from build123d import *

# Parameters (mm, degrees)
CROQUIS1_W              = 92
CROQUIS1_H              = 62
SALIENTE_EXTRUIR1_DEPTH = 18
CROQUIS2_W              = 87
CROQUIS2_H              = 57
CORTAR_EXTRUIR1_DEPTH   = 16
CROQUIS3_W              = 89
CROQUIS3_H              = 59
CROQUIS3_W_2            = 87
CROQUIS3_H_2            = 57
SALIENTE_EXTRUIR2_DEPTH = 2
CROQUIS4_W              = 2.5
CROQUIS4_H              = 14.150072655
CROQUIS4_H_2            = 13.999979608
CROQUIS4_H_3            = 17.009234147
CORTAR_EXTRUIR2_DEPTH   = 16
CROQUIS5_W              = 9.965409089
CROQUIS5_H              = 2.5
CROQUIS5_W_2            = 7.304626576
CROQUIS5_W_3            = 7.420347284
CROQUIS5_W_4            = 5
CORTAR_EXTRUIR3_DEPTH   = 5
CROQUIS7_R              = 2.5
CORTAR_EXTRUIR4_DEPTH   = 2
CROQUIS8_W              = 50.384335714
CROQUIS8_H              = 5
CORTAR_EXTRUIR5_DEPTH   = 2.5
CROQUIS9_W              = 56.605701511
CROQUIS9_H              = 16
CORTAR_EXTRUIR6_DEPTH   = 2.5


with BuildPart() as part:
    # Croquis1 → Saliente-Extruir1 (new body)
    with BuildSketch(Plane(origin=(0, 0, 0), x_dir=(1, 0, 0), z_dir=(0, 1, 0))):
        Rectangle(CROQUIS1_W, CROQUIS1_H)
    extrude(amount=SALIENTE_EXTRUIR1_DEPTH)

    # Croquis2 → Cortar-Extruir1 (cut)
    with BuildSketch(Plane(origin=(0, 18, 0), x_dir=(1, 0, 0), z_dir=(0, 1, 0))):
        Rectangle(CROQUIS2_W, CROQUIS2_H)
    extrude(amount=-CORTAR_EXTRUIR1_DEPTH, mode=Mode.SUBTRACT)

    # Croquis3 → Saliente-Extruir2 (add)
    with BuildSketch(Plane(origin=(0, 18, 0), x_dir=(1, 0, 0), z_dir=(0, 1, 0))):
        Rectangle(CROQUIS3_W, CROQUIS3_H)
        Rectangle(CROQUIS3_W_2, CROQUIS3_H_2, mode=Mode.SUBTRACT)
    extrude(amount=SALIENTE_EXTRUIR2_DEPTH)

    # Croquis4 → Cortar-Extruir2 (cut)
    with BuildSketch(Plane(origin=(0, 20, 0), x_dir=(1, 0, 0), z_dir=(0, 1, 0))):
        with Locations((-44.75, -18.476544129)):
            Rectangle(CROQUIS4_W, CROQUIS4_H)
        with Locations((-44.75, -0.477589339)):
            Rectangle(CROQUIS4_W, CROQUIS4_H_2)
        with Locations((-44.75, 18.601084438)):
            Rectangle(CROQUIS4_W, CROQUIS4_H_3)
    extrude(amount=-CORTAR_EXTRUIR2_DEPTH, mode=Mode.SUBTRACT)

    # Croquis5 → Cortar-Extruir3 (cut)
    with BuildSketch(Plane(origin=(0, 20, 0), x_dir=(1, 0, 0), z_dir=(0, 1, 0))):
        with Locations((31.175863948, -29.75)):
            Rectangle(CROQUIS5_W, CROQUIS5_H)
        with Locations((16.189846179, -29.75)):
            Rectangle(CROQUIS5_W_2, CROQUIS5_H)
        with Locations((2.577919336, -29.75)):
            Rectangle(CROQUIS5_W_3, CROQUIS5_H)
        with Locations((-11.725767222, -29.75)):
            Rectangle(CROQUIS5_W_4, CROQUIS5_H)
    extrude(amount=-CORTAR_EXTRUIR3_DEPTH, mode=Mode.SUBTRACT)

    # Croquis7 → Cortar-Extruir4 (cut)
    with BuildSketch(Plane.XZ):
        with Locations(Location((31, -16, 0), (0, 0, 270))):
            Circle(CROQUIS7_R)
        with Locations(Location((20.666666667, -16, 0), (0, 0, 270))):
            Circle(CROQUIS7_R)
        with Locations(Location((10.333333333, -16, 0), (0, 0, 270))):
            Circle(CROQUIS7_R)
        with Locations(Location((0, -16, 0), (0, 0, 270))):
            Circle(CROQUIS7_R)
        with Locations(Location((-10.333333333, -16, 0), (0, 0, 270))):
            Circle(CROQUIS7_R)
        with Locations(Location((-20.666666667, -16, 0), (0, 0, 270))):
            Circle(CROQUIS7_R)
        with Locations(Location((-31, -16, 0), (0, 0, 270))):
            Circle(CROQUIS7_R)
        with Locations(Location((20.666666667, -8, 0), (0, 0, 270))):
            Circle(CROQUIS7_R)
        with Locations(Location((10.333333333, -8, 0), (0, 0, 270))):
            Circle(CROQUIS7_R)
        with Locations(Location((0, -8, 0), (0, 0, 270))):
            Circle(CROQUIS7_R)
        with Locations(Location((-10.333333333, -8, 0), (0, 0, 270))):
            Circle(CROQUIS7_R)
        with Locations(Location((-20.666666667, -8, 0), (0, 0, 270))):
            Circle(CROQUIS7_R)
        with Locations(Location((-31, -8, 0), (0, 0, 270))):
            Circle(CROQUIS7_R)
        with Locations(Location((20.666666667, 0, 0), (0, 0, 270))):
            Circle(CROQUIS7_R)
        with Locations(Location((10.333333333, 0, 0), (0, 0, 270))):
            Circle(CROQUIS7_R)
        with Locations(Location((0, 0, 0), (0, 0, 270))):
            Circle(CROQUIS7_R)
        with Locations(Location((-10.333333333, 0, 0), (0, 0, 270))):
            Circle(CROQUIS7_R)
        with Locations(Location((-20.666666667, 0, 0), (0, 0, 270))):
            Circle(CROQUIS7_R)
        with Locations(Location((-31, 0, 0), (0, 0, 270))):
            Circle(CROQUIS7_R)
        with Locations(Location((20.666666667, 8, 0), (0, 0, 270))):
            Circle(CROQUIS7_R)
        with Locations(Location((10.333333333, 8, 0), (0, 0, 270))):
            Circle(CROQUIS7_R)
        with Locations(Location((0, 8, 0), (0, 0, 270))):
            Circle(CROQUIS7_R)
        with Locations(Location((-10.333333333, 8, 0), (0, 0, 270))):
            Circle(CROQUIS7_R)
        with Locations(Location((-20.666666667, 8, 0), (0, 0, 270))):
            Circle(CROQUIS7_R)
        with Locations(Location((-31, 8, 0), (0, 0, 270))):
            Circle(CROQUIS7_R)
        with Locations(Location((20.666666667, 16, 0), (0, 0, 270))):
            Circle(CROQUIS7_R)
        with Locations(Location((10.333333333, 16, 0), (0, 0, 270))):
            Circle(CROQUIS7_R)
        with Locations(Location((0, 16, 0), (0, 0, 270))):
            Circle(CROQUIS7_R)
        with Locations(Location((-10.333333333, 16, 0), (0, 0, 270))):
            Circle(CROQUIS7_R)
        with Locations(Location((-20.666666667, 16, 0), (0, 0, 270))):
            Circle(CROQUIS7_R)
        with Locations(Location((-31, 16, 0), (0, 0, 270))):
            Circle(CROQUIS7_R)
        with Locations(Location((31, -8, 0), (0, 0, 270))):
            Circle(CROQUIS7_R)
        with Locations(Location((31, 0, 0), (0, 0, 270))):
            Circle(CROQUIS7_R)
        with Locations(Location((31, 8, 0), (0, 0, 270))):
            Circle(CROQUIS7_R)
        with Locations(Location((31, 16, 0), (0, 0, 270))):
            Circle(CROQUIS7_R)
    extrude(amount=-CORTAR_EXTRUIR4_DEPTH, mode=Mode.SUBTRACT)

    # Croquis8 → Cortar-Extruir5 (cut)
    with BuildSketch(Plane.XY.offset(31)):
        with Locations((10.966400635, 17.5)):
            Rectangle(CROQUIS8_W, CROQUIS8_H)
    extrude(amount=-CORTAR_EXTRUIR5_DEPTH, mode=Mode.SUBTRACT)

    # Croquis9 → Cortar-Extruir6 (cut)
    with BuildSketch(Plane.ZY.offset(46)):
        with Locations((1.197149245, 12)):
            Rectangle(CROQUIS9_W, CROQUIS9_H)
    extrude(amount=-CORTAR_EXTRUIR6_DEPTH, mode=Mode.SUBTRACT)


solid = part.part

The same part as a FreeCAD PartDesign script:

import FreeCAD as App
import Part
import Sketcher

V = App.Vector
Q = App.Units.Quantity


def add_polygon(sketch, points):
    """Adds a closed chain of lines whose ends are joined by coincident constraints."""
    first, n = sketch.GeometryCount, len(points)
    for a, b in zip(points, points[1:] + points[:1]):
        sketch.addGeometry(Part.LineSegment(App.Vector(*a, 0), App.Vector(*b, 0)), False)
    for i in range(n):
        sketch.addConstraint(Sketcher.Constraint("Coincident", first + i, 2, first + (i + 1) % n, 1))

doc = App.newDocument("Part")
body = doc.addObject("PartDesign::Body", "Body")

sketch1 = body.newObject("Sketcher::SketchObject", "Sketch")
sketch1.AttachmentSupport = (doc.getObject("XZ_Plane"), [""])
sketch1.MapMode = "FlatFace"
add_polygon(sketch1, [(-46, -31), (-46, 31), (46, 31), (46, -31)])
sketch1.addConstraint(Sketcher.Constraint("Vertical", 0))
sketch1.addConstraint(Sketcher.Constraint("Horizontal", 1))
sketch1.addConstraint(Sketcher.Constraint("Vertical", 2))
sketch1.addConstraint(Sketcher.Constraint("Horizontal", 3))
sketch1.addConstraint(Sketcher.Constraint("Symmetric", 0, 2, 2, 2, -1, 1))
sketch1.addConstraint(Sketcher.Constraint("DistanceX", 1, 1, 1, 2, Q("92 mm")))
sketch1.addConstraint(Sketcher.Constraint("DistanceY", 0, 1, 0, 2, Q("62 mm")))
pad1 = body.newObject("PartDesign::Pad", "Pad")
pad1.Profile = sketch1
pad1.Length = 18
pad1.Reversed = True

sketch2 = body.newObject("Sketcher::SketchObject", "Sketch001")
sketch2.AttachmentSupport = (doc.getObject("XZ_Plane"), [""])
sketch2.MapMode = "FlatFace"
sketch2.AttachmentOffset = App.Placement(V(0, 0, -18), App.Rotation())
add_polygon(sketch2, [(-44, -28), (-44, 28), (44, 28), (44, -28)])
sketch2.addConstraint(Sketcher.Constraint("Vertical", 0))
sketch2.addConstraint(Sketcher.Constraint("Horizontal", 1))
sketch2.addConstraint(Sketcher.Constraint("Vertical", 2))
sketch2.addConstraint(Sketcher.Constraint("Horizontal", 3))
sketch2.addConstraint(Sketcher.Constraint("Symmetric", 0, 2, 2, 2, -1, 1))
sketch2.addConstraint(Sketcher.Constraint("DistanceX", 1, 1, 1, 2, Q("87 mm")))
sketch2.addConstraint(Sketcher.Constraint("DistanceY", 0, 1, 0, 2, Q("57 mm")))
pocket1 = body.newObject("PartDesign::Pocket", "Pocket")
pocket1.Profile = sketch2
pocket1.Length = 16
pocket1.Reversed = True

sketch3 = body.newObject("Sketcher::SketchObject", "Sketch002")
sketch3.AttachmentSupport = (doc.getObject("XZ_Plane"), [""])
sketch3.MapMode = "FlatFace"
sketch3.AttachmentOffset = App.Placement(V(0, 0, -18), App.Rotation())
add_polygon(sketch3, [(-44, -30), (-44, 30), (44, 30), (44, -30)])
add_polygon(sketch3, [(44, 28), (-44, 28), (-44, -28), (44, -28)])
sketch3.addConstraint(Sketcher.Constraint("Vertical", 0))
sketch3.addConstraint(Sketcher.Constraint("Horizontal", 1))
sketch3.addConstraint(Sketcher.Constraint("Vertical", 2))
sketch3.addConstraint(Sketcher.Constraint("Horizontal", 3))
sketch3.addConstraint(Sketcher.Constraint("Horizontal", 4))
sketch3.addConstraint(Sketcher.Constraint("Vertical", 5))
sketch3.addConstraint(Sketcher.Constraint("Horizontal", 6))
sketch3.addConstraint(Sketcher.Constraint("Vertical", 7))
sketch3.addConstraint(Sketcher.Constraint("Symmetric", 0, 2, 2, 2, -1, 1))
sketch3.addConstraint(Sketcher.Constraint("Symmetric", 4, 2, 6, 2, -1, 1))
sketch3.addConstraint(Sketcher.Constraint("DistanceX", 1, 1, 1, 2, Q("89 mm")))
sketch3.addConstraint(Sketcher.Constraint("DistanceX", 4, 2, 4, 1, Q("87 mm")))
sketch3.addConstraint(Sketcher.Constraint("DistanceY", 0, 1, 0, 2, Q("59 mm")))
sketch3.addConstraint(Sketcher.Constraint("DistanceY", 5, 2, 5, 1, Q("57 mm")))
pad2 = body.newObject("PartDesign::Pad", "Pad001")
pad2.Profile = sketch3
pad2.Length = 2
pad2.Reversed = True

sketch4 = body.newObject("Sketcher::SketchObject", "Sketch003")
sketch4.AttachmentSupport = (doc.getObject("XZ_Plane"), [""])
sketch4.MapMode = "FlatFace"
sketch4.AttachmentOffset = App.Placement(V(0, 0, -20), App.Rotation())
add_polygon(sketch4, [(-46, 11.4), (-46, 25.6), (-43.5, 25.6), (-43.5, 11.4)])
add_polygon(sketch4, [(-46, -6.5), (-46, 7.5), (-43.5, 7.5), (-43.5, -6.5)])
add_polygon(sketch4, [(-46, -27.1), (-46, -10.1), (-43.5, -10.1), (-43.5, -27.1)])
sketch4.addConstraint(Sketcher.Constraint("Vertical", 0))
sketch4.addConstraint(Sketcher.Constraint("Horizontal", 1))
sketch4.addConstraint(Sketcher.Constraint("Vertical", 2))
sketch4.addConstraint(Sketcher.Constraint("Horizontal", 3))
sketch4.addConstraint(Sketcher.Constraint("Vertical", 4))
sketch4.addConstraint(Sketcher.Constraint("Horizontal", 5))
sketch4.addConstraint(Sketcher.Constraint("Vertical", 6))
sketch4.addConstraint(Sketcher.Constraint("Horizontal", 7))
sketch4.addConstraint(Sketcher.Constraint("Vertical", 8))
sketch4.addConstraint(Sketcher.Constraint("Horizontal", 9))
sketch4.addConstraint(Sketcher.Constraint("Vertical", 10))
sketch4.addConstraint(Sketcher.Constraint("Horizontal", 11))
sketch4.addConstraint(Sketcher.Constraint("Vertical", 3, 2, 4, 2))
sketch4.addConstraint(Sketcher.Constraint("Vertical", 2, 2, 5, 2))
sketch4.addConstraint(Sketcher.Constraint("Vertical", 7, 2, 8, 2))
sketch4.addConstraint(Sketcher.Constraint("Vertical", 6, 2, 9, 2))
sketch4.addConstraint(Sketcher.Constraint("DistanceX", 1, 1, 1, 2, Q("2.5 mm")))
sketch4.addConstraint(Sketcher.Constraint("DistanceX", 0, 2, -1, 1, Q("46 mm")))
sketch4.addConstraint(Sketcher.Constraint("DistanceY", 4, 2, 0, 2, Q("18.074001 mm")))
sketch4.addConstraint(Sketcher.Constraint("DistanceY", 4, 1, 4, 2, Q("13.99998 mm")))
sketch4.addConstraint(Sketcher.Constraint("DistanceY", 6, 2, -1, 1, Q("6.5224 mm")))
sketch4.addConstraint(Sketcher.Constraint("DistanceY", 10, 2, -1, 1, Q("27.105702 mm")))
sketch4.addConstraint(Sketcher.Constraint("DistanceY", 0, 1, 0, 2, Q("14.150073 mm")))
sketch4.addConstraint(Sketcher.Constraint("DistanceY", 8, 1, 8, 2, Q("17.009234 mm")))
pocket2 = body.newObject("PartDesign::Pocket", "Pocket001")
pocket2.Profile = sketch4
pocket2.Length = 16
pocket2.Reversed = True

sketch5 = body.newObject("Sketcher::SketchObject", "Sketch004")
sketch5.AttachmentSupport = (doc.getObject("XZ_Plane"), [""])
sketch5.MapMode = "FlatFace"
sketch5.AttachmentOffset = App.Placement(V(0, 0, -20), App.Rotation())
add_polygon(sketch5, [(26.2, 28.5), (26.2, 31), (36.2, 31), (36.2, 28.5)])
add_polygon(sketch5, [(12.5, 28.5), (12.5, 31), (19.8, 31), (19.8, 28.5)])
add_polygon(sketch5, [(-1.1, 28.5), (-1.1, 31), (6.3, 31), (6.3, 28.5)])
add_polygon(sketch5, [(-14.2, 28.5), (-14.2, 31), (-9.2, 31), (-9.2, 28.5)])
sketch5.addConstraint(Sketcher.Constraint("Vertical", 0))
sketch5.addConstraint(Sketcher.Constraint("Horizontal", 1))
sketch5.addConstraint(Sketcher.Constraint("Vertical", 2))
sketch5.addConstraint(Sketcher.Constraint("Horizontal", 3))
sketch5.addConstraint(Sketcher.Constraint("Vertical", 4))
sketch5.addConstraint(Sketcher.Constraint("Horizontal", 5))
sketch5.addConstraint(Sketcher.Constraint("Vertical", 6))
sketch5.addConstraint(Sketcher.Constraint("Horizontal", 7))
sketch5.addConstraint(Sketcher.Constraint("Vertical", 8))
sketch5.addConstraint(Sketcher.Constraint("Horizontal", 9))
sketch5.addConstraint(Sketcher.Constraint("Vertical", 10))
sketch5.addConstraint(Sketcher.Constraint("Horizontal", 11))
sketch5.addConstraint(Sketcher.Constraint("Vertical", 12))
sketch5.addConstraint(Sketcher.Constraint("Horizontal", 13))
sketch5.addConstraint(Sketcher.Constraint("Vertical", 14))
sketch5.addConstraint(Sketcher.Constraint("Horizontal", 15))
sketch5.addConstraint(Sketcher.Constraint("Horizontal", 1, 2, 4, 2))
sketch5.addConstraint(Sketcher.Constraint("Horizontal", 3, 2, 6, 2))
sketch5.addConstraint(Sketcher.Constraint("Horizontal", 5, 2, 8, 2))
sketch5.addConstraint(Sketcher.Constraint("Horizontal", 7, 2, 10, 2))
sketch5.addConstraint(Sketcher.Constraint("Horizontal", 9, 2, 12, 2))
sketch5.addConstraint(Sketcher.Constraint("Horizontal", 11, 2, 14, 2))
sketch5.addConstraint(Sketcher.Constraint("DistanceX", 13, 1, 13, 2, Q("5 mm")))
sketch5.addConstraint(Sketcher.Constraint("DistanceY", 0, 1, 0, 2, Q("2.5 mm")))
sketch5.addConstraint(Sketcher.Constraint("DistanceY", -1, 1, 0, 2, Q("31 mm")))
sketch5.addConstraint(Sketcher.Constraint("DistanceX", 5, 2, 0, 2, Q("6.351 mm")))
sketch5.addConstraint(Sketcher.Constraint("DistanceX", 1, 1, 1, 2, Q("9.965409 mm")))
sketch5.addConstraint(Sketcher.Constraint("DistanceX", 12, 2, 4, 2, Q("26.7633 mm")))
sketch5.addConstraint(Sketcher.Constraint("DistanceX", 5, 1, 5, 2, Q("7.304627 mm")))
sketch5.addConstraint(Sketcher.Constraint("DistanceX", 9, 1, 9, 2, Q("7.420347 mm")))
sketch5.addConstraint(Sketcher.Constraint("DistanceX", -1, 1, 0, 2, Q("26.193159 mm")))
sketch5.addConstraint(Sketcher.Constraint("DistanceX", 9, 2, 4, 2, Q("6.24944 mm")))
pocket3 = body.newObject("PartDesign::Pocket", "Pocket002")
pocket3.Profile = sketch5
pocket3.Length = 5
pocket3.Reversed = True

sketch6 = body.newObject("Sketcher::SketchObject", "Sketch005")
sketch6.AttachmentSupport = (doc.getObject("XZ_Plane"), [""])
sketch6.MapMode = "FlatFace"
sketch6.addGeometry(Part.Circle(V(31, -16, 0), V(0, 0, 1), 2.5), False)
sketch6.addGeometry(Part.Circle(V(20.7, -16, 0), V(0, 0, 1), 2.5), False)
sketch6.addGeometry(Part.Circle(V(10.3, -16, 0), V(0, 0, 1), 2.5), False)
sketch6.addGeometry(Part.Circle(V(0, -16, 0), V(0, 0, 1), 2.5), False)
sketch6.addGeometry(Part.Circle(V(-10.3, -16, 0), V(0, 0, 1), 2.5), False)
sketch6.addGeometry(Part.Circle(V(-20.7, -16, 0), V(0, 0, 1), 2.5), False)
sketch6.addGeometry(Part.Circle(V(-31, -16, 0), V(0, 0, 1), 2.5), False)
sketch6.addGeometry(Part.Circle(V(20.7, -8, 0), V(0, 0, 1), 2.5), False)
sketch6.addGeometry(Part.Circle(V(10.3, -8, 0), V(0, 0, 1), 2.5), False)
sketch6.addGeometry(Part.Circle(V(0, -8, 0), V(0, 0, 1), 2.5), False)
sketch6.addGeometry(Part.Circle(V(-10.3, -8, 0), V(0, 0, 1), 2.5), False)
sketch6.addGeometry(Part.Circle(V(-20.7, -8, 0), V(0, 0, 1), 2.5), False)
sketch6.addGeometry(Part.Circle(V(-31, -8, 0), V(0, 0, 1), 2.5), False)
sketch6.addGeometry(Part.Circle(V(20.7, 0, 0), V(0, 0, 1), 2.5), False)
sketch6.addGeometry(Part.Circle(V(10.3, 0, 0), V(0, 0, 1), 2.5), False)
sketch6.addGeometry(Part.Circle(V(0, 0, 0), V(0, 0, 1), 2.5), False)
sketch6.addGeometry(Part.Circle(V(-10.3, 0, 0), V(0, 0, 1), 2.5), False)
sketch6.addGeometry(Part.Circle(V(-20.7, 0, 0), V(0, 0, 1), 2.5), False)
sketch6.addGeometry(Part.Circle(V(-31, 0, 0), V(0, 0, 1), 2.5), False)
sketch6.addGeometry(Part.Circle(V(20.7, 8, 0), V(0, 0, 1), 2.5), False)
sketch6.addGeometry(Part.Circle(V(10.3, 8, 0), V(0, 0, 1), 2.5), False)
sketch6.addGeometry(Part.Circle(V(0, 8, 0), V(0, 0, 1), 2.5), False)
sketch6.addGeometry(Part.Circle(V(-10.3, 8, 0), V(0, 0, 1), 2.5), False)
sketch6.addGeometry(Part.Circle(V(-20.7, 8, 0), V(0, 0, 1), 2.5), False)
sketch6.addGeometry(Part.Circle(V(-31, 8, 0), V(0, 0, 1), 2.5), False)
sketch6.addGeometry(Part.Circle(V(20.7, 16, 0), V(0, 0, 1), 2.5), False)
sketch6.addGeometry(Part.Circle(V(10.3, 16, 0), V(0, 0, 1), 2.5), False)
sketch6.addGeometry(Part.Circle(V(0, 16, 0), V(0, 0, 1), 2.5), False)
sketch6.addGeometry(Part.Circle(V(-10.3, 16, 0), V(0, 0, 1), 2.5), False)
sketch6.addGeometry(Part.Circle(V(-20.7, 16, 0), V(0, 0, 1), 2.5), False)
sketch6.addGeometry(Part.Circle(V(-31, 16, 0), V(0, 0, 1), 2.5), False)
sketch6.addGeometry(Part.Circle(V(31, -8, 0), V(0, 0, 1), 2.5), False)
sketch6.addGeometry(Part.Circle(V(31, 0, 0), V(0, 0, 1), 2.5), False)
sketch6.addGeometry(Part.Circle(V(31, 8, 0), V(0, 0, 1), 2.5), False)
sketch6.addGeometry(Part.Circle(V(31, 16, 0), V(0, 0, 1), 2.5), False)
sketch6.addConstraint(Sketcher.Constraint("Coincident", 15, 3, -1, 1))
sketch6.addConstraint(Sketcher.Constraint("Equal", 0, 1))
sketch6.addConstraint(Sketcher.Constraint("Equal", 1, 2))
sketch6.addConstraint(Sketcher.Constraint("Equal", 2, 3))
sketch6.addConstraint(Sketcher.Constraint("Equal", 3, 4))
sketch6.addConstraint(Sketcher.Constraint("Equal", 4, 5))
sketch6.addConstraint(Sketcher.Constraint("Equal", 5, 6))
sketch6.addConstraint(Sketcher.Constraint("Equal", 6, 7))
sketch6.addConstraint(Sketcher.Constraint("Equal", 7, 8))
sketch6.addConstraint(Sketcher.Constraint("Equal", 8, 9))
sketch6.addConstraint(Sketcher.Constraint("Equal", 9, 10))
sketch6.addConstraint(Sketcher.Constraint("Equal", 10, 11))
sketch6.addConstraint(Sketcher.Constraint("Equal", 11, 12))
sketch6.addConstraint(Sketcher.Constraint("Equal", 12, 13))
sketch6.addConstraint(Sketcher.Constraint("Equal", 13, 14))
sketch6.addConstraint(Sketcher.Constraint("Equal", 14, 15))
sketch6.addConstraint(Sketcher.Constraint("Equal", 15, 16))
sketch6.addConstraint(Sketcher.Constraint("Equal", 16, 17))
sketch6.addConstraint(Sketcher.Constraint("Equal", 17, 18))
sketch6.addConstraint(Sketcher.Constraint("Equal", 18, 19))
sketch6.addConstraint(Sketcher.Constraint("Equal", 19, 20))
sketch6.addConstraint(Sketcher.Constraint("Equal", 20, 21))
sketch6.addConstraint(Sketcher.Constraint("Equal", 21, 22))
sketch6.addConstraint(Sketcher.Constraint("Equal", 22, 23))
sketch6.addConstraint(Sketcher.Constraint("Equal", 23, 24))
sketch6.addConstraint(Sketcher.Constraint("Equal", 24, 25))
sketch6.addConstraint(Sketcher.Constraint("Equal", 25, 26))
sketch6.addConstraint(Sketcher.Constraint("Equal", 26, 27))
sketch6.addConstraint(Sketcher.Constraint("Equal", 27, 28))
sketch6.addConstraint(Sketcher.Constraint("Equal", 28, 29))
sketch6.addConstraint(Sketcher.Constraint("Equal", 29, 30))
sketch6.addConstraint(Sketcher.Constraint("Equal", 30, 31))
sketch6.addConstraint(Sketcher.Constraint("Equal", 31, 32))
sketch6.addConstraint(Sketcher.Constraint("Equal", 32, 33))
sketch6.addConstraint(Sketcher.Constraint("Equal", 33, 34))
sketch6.addConstraint(Sketcher.Constraint("Symmetric", 14, 3, 16, 3, -1, 1))
sketch6.addConstraint(Sketcher.Constraint("Symmetric", 13, 3, 17, 3, -1, 1))
sketch6.addConstraint(Sketcher.Constraint("Symmetric", 11, 3, 19, 3, -1, 1))
sketch6.addConstraint(Sketcher.Constraint("Symmetric", 10, 3, 20, 3, -1, 1))
sketch6.addConstraint(Sketcher.Constraint("Symmetric", 9, 3, 21, 3, -1, 1))
sketch6.addConstraint(Sketcher.Constraint("Symmetric", 8, 3, 22, 3, -1, 1))
sketch6.addConstraint(Sketcher.Constraint("Symmetric", 7, 3, 23, 3, -1, 1))
sketch6.addConstraint(Sketcher.Constraint("Symmetric", 5, 3, 25, 3, -1, 1))
sketch6.addConstraint(Sketcher.Constraint("Symmetric", 4, 3, 26, 3, -1, 1))
sketch6.addConstraint(Sketcher.Constraint("Symmetric", 3, 3, 27, 3, -1, 1))
sketch6.addConstraint(Sketcher.Constraint("Symmetric", 2, 3, 28, 3, -1, 1))
sketch6.addConstraint(Sketcher.Constraint("Symmetric", 1, 3, 29, 3, -1, 1))
sketch6.addConstraint(Sketcher.Constraint("Symmetric", 0, 3, 30, 3, -1, 1))
sketch6.addConstraint(Sketcher.Constraint("Symmetric", 24, 3, 31, 3, -1, 1))
sketch6.addConstraint(Sketcher.Constraint("Symmetric", 18, 3, 32, 3, -1, 1))
sketch6.addConstraint(Sketcher.Constraint("Symmetric", 12, 3, 33, 3, -1, 1))
sketch6.addConstraint(Sketcher.Constraint("Symmetric", 6, 3, 34, 3, -1, 1))
sketch6.addConstraint(Sketcher.Constraint("Symmetric", 2, 3, 4, 3, -2))
sketch6.addConstraint(Sketcher.Constraint("Symmetric", 1, 3, 5, 3, -2))
sketch6.addConstraint(Sketcher.Constraint("Symmetric", 0, 3, 6, 3, -2))
sketch6.addConstraint(Sketcher.Constraint("Symmetric", 8, 3, 10, 3, -2))
sketch6.addConstraint(Sketcher.Constraint("Symmetric", 7, 3, 11, 3, -2))
sketch6.addConstraint(Sketcher.Constraint("Symmetric", 12, 3, 31, 3, -2))
sketch6.addConstraint(Sketcher.Constraint("PointOnObject", 3, 3, -2))
sketch6.addConstraint(Sketcher.Constraint("PointOnObject", 9, 3, -2))
sketch6.addConstraint(Sketcher.Constraint("PointOnObject", 13, 3, -1))
sketch6.addConstraint(Sketcher.Constraint("PointOnObject", 14, 3, -1))
sketch6.addConstraint(Sketcher.Constraint("PointOnObject", 18, 3, -1))
sketch6.addConstraint(Sketcher.Constraint("Horizontal", 0, 3, 1, 3))
sketch6.addConstraint(Sketcher.Constraint("Horizontal", 1, 3, 2, 3))
sketch6.addConstraint(Sketcher.Constraint("Horizontal", 2, 3, 3, 3))
sketch6.addConstraint(Sketcher.Constraint("Horizontal", 7, 3, 8, 3))
sketch6.addConstraint(Sketcher.Constraint("Horizontal", 8, 3, 9, 3))
sketch6.addConstraint(Sketcher.Constraint("Horizontal", 11, 3, 12, 3))
sketch6.addConstraint(Sketcher.Constraint("Vertical", 1, 3, 7, 3))
sketch6.addConstraint(Sketcher.Constraint("Vertical", 2, 3, 8, 3))
sketch6.addConstraint(Sketcher.Constraint("Vertical", 6, 3, 12, 3))
sketch6.addConstraint(Sketcher.Constraint("Vertical", 7, 3, 13, 3))
sketch6.addConstraint(Sketcher.Constraint("Vertical", 8, 3, 14, 3))
sketch6.addConstraint(Sketcher.Constraint("Vertical", 12, 3, 18, 3))
sketch6.addConstraint(Sketcher.Constraint("Diameter", 0, Q("5 mm")))
sketch6.addConstraint(Sketcher.Constraint("DistanceX", -1, 1, 0, 3, Q("31 mm")))
sketch6.addConstraint(Sketcher.Constraint("DistanceY", 0, 3, -1, 1, Q("16 mm")))
sketch6.addConstraint(Sketcher.Constraint("DistanceY", 7, 3, -1, 1, Q("8 mm")))
sketch6.addConstraint(Sketcher.Constraint("DistanceX", 4, 3, 1, 3, Q("31 mm")))
sketch6.addConstraint(Sketcher.Constraint("DistanceX", -1, 1, 1, 3, Q("20.666667 mm")))
pocket4 = body.newObject("PartDesign::Pocket", "Pocket003")
pocket4.Profile = sketch6
pocket4.Length = 2

sketch7 = body.newObject("Sketcher::SketchObject", "Sketch006")
sketch7.AttachmentSupport = (doc.getObject("XY_Plane"), [""])
sketch7.MapMode = "FlatFace"
sketch7.AttachmentOffset = App.Placement(V(0, 0, 31), App.Rotation())
add_polygon(sketch7, [(-14, 20), (-14, 15), (36, 15), (36, 20)])
sketch7.addConstraint(Sketcher.Constraint("Vertical", 0))
sketch7.addConstraint(Sketcher.Constraint("Horizontal", 1))
sketch7.addConstraint(Sketcher.Constraint("Vertical", 2))
sketch7.addConstraint(Sketcher.Constraint("Horizontal", 3))
sketch7.addConstraint(Sketcher.Constraint("DistanceY", 0, 2, 0, 1, Q("5 mm")))
sketch7.addConstraint(Sketcher.Constraint("DistanceY", -1, 1, 0, 2, Q("15 mm")))
sketch7.addConstraint(Sketcher.Constraint("DistanceX", 1, 1, 1, 2, Q("50.384336 mm")))
sketch7.addConstraint(Sketcher.Constraint("DistanceX", -1, 1, 1, 2, Q("36.158568 mm")))
pocket5 = body.newObject("PartDesign::Pocket", "Pocket004")
pocket5.Profile = sketch7
pocket5.Length = 2.5

sketch8 = body.newObject("Sketcher::SketchObject", "Sketch007")
sketch8.AttachmentSupport = (doc.getObject("YZ_Plane"), [""])
sketch8.MapMode = "FlatFace"
sketch8.AttachmentOffset = App.Placement(V(0, 0, -46), App.Rotation())
add_polygon(sketch8, [(20, -27), (4, -27), (4, 30), (20, 30)])
sketch8.addConstraint(Sketcher.Constraint("Horizontal", 0))
sketch8.addConstraint(Sketcher.Constraint("Vertical", 1))
sketch8.addConstraint(Sketcher.Constraint("Horizontal", 2))
sketch8.addConstraint(Sketcher.Constraint("Vertical", 3))
sketch8.addConstraint(Sketcher.Constraint("DistanceX", 0, 2, 0, 1, Q("16 mm")))
sketch8.addConstraint(Sketcher.Constraint("DistanceX", -1, 1, 0, 2, Q("4 mm")))
sketch8.addConstraint(Sketcher.Constraint("DistanceY", -1, 1, 1, 2, Q("29.5 mm")))
sketch8.addConstraint(Sketcher.Constraint("DistanceY", 1, 1, 1, 2, Q("56.605702 mm")))
pocket6 = body.newObject("PartDesign::Pocket", "Pocket005")
pocket6.Profile = sketch8
pocket6.Length = 2.5
pocket6.Reversed = True

doc.recompute()
